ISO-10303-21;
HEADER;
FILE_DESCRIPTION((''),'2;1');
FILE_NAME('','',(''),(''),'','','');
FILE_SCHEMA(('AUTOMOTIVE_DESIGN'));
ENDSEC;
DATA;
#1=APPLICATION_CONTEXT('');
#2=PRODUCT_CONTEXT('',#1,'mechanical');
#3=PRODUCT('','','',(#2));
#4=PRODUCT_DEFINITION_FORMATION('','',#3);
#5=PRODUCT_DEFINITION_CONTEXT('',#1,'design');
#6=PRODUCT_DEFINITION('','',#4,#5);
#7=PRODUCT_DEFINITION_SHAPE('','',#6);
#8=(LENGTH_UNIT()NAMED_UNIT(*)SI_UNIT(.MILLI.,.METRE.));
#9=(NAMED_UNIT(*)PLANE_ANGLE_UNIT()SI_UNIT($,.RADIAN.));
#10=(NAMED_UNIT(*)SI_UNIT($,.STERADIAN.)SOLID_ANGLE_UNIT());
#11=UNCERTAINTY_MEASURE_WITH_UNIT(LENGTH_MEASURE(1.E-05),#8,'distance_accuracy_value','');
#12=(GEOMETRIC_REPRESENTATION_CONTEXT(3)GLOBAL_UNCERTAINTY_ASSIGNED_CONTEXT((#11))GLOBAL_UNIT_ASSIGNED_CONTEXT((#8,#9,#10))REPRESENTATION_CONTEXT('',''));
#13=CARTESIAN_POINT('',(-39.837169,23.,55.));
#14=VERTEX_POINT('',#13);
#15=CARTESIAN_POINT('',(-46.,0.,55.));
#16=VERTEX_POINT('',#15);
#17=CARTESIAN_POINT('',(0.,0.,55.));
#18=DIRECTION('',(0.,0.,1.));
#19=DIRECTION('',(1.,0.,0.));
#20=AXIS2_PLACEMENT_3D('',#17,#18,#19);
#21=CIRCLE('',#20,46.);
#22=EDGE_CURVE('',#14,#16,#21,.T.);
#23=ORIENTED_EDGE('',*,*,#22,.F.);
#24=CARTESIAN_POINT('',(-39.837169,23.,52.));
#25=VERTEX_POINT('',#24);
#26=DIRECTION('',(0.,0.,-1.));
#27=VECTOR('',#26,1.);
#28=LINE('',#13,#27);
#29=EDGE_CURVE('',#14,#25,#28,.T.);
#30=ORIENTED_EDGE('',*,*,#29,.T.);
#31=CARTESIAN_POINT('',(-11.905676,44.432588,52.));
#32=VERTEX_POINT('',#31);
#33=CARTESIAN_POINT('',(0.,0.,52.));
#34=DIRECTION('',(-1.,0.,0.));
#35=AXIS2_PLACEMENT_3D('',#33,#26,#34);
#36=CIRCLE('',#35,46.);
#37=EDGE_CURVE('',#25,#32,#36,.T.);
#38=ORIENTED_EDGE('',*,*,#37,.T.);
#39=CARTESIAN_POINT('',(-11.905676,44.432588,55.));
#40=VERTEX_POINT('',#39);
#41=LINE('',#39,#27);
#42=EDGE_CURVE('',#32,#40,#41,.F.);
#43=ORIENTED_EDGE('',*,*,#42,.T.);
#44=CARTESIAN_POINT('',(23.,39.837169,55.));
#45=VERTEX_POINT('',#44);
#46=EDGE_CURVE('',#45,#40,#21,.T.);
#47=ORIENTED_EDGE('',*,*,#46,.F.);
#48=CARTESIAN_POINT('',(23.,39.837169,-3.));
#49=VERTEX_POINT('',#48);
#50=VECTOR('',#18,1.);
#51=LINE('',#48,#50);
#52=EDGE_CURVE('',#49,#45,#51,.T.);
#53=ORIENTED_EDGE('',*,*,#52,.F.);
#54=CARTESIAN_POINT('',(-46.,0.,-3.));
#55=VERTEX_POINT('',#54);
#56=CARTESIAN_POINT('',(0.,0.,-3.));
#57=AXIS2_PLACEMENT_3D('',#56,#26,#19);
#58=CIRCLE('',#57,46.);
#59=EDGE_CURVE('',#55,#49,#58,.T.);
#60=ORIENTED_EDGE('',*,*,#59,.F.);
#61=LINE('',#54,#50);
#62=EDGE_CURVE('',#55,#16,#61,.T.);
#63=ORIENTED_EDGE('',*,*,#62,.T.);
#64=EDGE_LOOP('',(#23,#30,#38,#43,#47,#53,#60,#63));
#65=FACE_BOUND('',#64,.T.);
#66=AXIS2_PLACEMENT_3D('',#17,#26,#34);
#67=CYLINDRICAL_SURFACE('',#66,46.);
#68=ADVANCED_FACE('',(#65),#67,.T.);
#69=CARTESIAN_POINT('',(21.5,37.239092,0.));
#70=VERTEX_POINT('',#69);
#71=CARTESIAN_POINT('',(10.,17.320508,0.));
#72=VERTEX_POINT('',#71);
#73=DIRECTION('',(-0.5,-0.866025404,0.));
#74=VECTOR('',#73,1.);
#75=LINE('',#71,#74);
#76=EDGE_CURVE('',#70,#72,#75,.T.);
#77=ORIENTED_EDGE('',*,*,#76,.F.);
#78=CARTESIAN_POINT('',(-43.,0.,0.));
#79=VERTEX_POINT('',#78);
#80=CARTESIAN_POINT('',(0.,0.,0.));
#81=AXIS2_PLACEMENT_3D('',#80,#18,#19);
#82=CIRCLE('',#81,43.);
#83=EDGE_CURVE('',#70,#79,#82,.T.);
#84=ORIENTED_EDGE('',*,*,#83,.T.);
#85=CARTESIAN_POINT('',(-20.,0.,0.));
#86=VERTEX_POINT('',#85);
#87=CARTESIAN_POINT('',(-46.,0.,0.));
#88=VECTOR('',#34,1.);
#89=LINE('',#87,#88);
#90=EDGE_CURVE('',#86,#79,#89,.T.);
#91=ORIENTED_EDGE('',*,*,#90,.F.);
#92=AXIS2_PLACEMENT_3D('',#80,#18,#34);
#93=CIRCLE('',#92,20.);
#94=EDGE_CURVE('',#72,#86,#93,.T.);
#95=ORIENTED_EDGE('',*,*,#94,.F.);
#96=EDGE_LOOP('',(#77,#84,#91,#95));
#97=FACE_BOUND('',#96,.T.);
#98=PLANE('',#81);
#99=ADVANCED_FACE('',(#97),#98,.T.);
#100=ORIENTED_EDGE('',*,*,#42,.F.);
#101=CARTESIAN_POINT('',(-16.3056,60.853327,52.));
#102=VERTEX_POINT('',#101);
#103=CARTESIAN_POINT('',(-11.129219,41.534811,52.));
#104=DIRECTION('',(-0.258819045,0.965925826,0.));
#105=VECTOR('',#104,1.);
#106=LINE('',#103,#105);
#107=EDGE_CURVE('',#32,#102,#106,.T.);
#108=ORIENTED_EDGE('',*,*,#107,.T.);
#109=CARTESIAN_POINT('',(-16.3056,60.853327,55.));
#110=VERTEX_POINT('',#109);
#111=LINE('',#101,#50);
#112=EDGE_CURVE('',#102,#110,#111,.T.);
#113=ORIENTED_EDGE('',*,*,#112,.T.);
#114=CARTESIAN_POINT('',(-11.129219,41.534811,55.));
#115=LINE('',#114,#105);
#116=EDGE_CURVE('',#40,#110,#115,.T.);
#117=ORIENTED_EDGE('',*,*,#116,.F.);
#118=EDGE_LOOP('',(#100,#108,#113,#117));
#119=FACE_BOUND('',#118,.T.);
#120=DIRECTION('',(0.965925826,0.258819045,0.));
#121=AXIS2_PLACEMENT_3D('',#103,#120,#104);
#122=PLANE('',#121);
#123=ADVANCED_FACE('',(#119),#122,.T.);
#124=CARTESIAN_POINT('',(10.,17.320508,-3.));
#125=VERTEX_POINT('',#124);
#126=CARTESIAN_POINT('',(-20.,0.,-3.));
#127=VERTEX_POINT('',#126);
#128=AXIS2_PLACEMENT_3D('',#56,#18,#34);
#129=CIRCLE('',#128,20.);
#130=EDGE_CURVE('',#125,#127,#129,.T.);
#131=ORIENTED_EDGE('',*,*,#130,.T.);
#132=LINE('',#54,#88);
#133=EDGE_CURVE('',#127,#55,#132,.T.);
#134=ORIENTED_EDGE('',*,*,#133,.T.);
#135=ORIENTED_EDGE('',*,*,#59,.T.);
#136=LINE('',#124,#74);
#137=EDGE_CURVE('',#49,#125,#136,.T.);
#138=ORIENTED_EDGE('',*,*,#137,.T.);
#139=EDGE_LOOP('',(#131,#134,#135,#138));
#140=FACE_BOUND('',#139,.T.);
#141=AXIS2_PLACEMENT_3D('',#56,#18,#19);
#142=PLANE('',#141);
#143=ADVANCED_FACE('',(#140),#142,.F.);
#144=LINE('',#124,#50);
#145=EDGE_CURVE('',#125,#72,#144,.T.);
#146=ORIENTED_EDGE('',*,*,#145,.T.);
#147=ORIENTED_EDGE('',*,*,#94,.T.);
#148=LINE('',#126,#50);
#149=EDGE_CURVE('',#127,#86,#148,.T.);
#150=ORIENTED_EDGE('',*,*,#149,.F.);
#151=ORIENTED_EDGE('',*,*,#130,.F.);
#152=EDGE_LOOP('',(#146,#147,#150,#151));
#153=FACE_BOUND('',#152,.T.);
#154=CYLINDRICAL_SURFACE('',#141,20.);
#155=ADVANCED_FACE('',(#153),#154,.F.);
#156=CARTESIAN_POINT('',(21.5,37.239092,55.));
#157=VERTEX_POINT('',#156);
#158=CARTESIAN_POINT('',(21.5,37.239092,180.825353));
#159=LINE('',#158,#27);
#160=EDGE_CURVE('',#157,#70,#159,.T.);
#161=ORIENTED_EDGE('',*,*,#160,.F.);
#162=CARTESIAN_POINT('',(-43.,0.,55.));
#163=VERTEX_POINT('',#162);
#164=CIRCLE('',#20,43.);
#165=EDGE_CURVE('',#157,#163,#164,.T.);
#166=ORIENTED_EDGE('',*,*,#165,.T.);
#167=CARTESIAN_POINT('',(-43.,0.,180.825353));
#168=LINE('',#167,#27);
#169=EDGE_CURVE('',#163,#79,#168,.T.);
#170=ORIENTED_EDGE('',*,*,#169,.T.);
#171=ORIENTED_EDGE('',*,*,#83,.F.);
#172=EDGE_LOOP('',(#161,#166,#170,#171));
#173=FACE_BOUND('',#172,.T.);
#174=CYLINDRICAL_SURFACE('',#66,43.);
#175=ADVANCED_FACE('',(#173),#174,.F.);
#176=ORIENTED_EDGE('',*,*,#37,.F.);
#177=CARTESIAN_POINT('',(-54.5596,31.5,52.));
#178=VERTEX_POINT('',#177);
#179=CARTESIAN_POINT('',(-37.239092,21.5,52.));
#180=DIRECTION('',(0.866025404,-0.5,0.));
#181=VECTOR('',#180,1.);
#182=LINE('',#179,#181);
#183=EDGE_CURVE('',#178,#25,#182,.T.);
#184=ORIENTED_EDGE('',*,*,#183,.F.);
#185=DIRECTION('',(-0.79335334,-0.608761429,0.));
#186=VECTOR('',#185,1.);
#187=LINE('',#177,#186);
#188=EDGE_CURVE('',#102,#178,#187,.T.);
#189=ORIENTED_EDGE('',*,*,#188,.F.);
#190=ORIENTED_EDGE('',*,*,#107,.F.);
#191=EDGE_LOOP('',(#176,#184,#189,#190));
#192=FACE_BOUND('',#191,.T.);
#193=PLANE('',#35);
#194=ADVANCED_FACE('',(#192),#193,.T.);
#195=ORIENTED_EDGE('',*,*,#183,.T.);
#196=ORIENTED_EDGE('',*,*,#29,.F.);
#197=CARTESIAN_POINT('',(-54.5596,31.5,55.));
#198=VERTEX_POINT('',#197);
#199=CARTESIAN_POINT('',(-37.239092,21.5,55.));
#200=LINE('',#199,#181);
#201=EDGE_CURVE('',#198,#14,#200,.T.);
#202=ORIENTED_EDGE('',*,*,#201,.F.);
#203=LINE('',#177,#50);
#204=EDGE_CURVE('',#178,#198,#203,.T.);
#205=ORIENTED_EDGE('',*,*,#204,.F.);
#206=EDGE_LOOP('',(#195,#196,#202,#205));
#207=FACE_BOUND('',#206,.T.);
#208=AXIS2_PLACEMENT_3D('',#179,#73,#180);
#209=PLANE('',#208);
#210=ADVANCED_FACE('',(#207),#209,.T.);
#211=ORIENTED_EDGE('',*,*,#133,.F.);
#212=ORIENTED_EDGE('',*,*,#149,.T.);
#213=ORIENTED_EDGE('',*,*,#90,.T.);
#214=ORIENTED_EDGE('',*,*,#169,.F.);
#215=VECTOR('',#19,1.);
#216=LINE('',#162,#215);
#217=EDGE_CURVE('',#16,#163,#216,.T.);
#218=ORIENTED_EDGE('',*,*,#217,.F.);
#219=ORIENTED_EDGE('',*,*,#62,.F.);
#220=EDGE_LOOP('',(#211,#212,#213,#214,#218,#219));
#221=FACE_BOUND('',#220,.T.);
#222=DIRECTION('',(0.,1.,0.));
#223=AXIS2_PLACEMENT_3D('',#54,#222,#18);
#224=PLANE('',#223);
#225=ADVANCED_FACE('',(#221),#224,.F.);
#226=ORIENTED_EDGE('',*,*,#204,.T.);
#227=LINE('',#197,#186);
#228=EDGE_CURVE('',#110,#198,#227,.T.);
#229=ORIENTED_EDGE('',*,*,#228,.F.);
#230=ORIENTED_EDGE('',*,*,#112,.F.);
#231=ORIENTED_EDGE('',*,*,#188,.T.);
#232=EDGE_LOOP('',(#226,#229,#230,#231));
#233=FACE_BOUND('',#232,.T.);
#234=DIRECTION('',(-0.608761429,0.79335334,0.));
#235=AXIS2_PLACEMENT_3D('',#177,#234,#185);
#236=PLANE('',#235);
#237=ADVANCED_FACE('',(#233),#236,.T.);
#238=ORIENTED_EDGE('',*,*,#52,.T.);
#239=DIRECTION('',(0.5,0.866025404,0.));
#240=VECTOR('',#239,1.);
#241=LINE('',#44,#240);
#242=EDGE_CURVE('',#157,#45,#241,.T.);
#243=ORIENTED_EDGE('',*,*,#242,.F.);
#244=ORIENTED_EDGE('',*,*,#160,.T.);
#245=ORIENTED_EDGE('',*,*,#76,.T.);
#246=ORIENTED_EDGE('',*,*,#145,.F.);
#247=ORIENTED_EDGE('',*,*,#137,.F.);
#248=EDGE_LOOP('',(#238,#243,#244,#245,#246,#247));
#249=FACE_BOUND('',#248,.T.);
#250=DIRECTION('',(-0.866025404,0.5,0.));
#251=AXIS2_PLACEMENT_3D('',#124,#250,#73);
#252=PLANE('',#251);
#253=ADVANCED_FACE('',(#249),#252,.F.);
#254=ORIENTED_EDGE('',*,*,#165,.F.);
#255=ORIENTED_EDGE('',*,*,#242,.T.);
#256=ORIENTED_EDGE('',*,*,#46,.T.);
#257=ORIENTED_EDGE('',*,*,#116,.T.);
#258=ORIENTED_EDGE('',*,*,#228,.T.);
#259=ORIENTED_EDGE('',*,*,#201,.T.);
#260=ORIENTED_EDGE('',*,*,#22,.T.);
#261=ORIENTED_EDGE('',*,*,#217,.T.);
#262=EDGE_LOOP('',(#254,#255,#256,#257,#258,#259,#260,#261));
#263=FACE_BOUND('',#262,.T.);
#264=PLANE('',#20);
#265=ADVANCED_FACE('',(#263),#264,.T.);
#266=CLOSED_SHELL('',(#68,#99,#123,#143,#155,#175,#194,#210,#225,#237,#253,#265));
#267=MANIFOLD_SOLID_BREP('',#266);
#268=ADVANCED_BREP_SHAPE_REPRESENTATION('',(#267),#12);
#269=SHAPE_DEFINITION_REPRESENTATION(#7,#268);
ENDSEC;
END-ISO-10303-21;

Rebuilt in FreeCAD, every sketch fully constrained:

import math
import FreeCAD as App
import Part
import Sketcher
from FreeCAD import Vector
Q = App.Units.Quantity

doc = App.newDocument("Part")
body = doc.addObject("PartDesign::Body", "Body")

sketch1 = body.newObject("Sketcher::SketchObject", "Sketch")
sketch1.AttachmentSupport = (doc.getObject("XY_Plane"), [""])
sketch1.MapMode = "FlatFace"
sketch1.addGeometry(Part.Circle(Vector(0, 0, 0), Vector(0, 0, 1), 46), False)
sketch1.addGeometry(Part.Circle(Vector(0, 0, 0), Vector(0, 0, 1), 43), False)
sketch1.addConstraint(Sketcher.Constraint("Coincident", 0, 3, -1, 1))
sketch1.addConstraint(Sketcher.Constraint("Coincident", 1, 3, -1, 1))
sketch1.addConstraint(Sketcher.Constraint("Diameter", 0, 92.0))
sketch1.addConstraint(Sketcher.Constraint("Diameter", 1, 86.0))
pad1 = body.newObject("PartDesign::Pad", "Pad")
pad1.Profile = sketch1
pad1.Length = 55

sketch2 = body.newObject("Sketcher::SketchObject", "Sketch001")
sketch2.AttachmentSupport = (doc.getObject("XY_Plane"), [""])
sketch2.MapMode = "FlatFace"
sketch2.AttachmentOffset = App.Placement(Vector(0, 0, -3), App.Rotation())
sketch2.addGeometry(Part.LineSegment(Vector(23, 39.837169, 0), Vector(10, 17.320508, 0)), False)
sketch2.addGeometry(Part.ArcOfCircle(Part.Circle(Vector(0, 0, 0), Vector(0, 0, 1), 20), math.radians(60), math.radians(180)), False)
sketch2.addGeometry(Part.LineSegment(Vector(-20, 0, 0), Vector(-46, 0, 0)), False)
sketch2.addGeometry(Part.ArcOfCircle(Part.Circle(Vector(0, 0, 0), Vector(0, 0, 1), 46), math.radians(60), math.radians(180)), False)
sketch2.addConstraint(Sketcher.Constraint("Coincident", 0, 2, 1, 1))
sketch2.addConstraint(Sketcher.Constraint("Coincident", 1, 2, 2, 1))
sketch2.addConstraint(Sketcher.Constraint("Coincident", 2, 2, 3, 2))
sketch2.addConstraint(Sketcher.Constraint("Coincident", 3, 1, 0, 1))
sketch2.addConstraint(Sketcher.Constraint("Horizontal", 2))
sketch2.addConstraint(Sketcher.Constraint("Coincident", 1, 3, -1, 1))
sketch2.addConstraint(Sketcher.Constraint("Coincident", 3, 3, -1, 1))
sketch2.addConstraint(Sketcher.Constraint("PointOnObject", 1, 2, -1))
sketch2.addConstraint(Sketcher.Constraint("Radius", 1, 20.0))
sketch2.addConstraint(Sketcher.Constraint("Radius", 3, 46.0))
sketch2.addConstraint(Sketcher.Constraint("Angle", 0, Q("-120 deg")))
sketch2.addConstraint(Sketcher.Constraint("DistanceX", -1, 1, 0, 2, 10.0))
pad2 = body.newObject("PartDesign::Pad", "Pad001")
pad2.Profile = sketch2
pad2.Length = 3

sketch3 = body.newObject("Sketcher::SketchObject", "Sketch002")
sketch3.AttachmentSupport = (doc.getObject("XY_Plane"), [""])
sketch3.MapMode = "FlatFace"
sketch3.AttachmentOffset = App.Placement(Vector(0, 0, -3), App.Rotation())
sketch3.addGeometry(Part.LineSegment(Vector(21.5, 37.239092, 0), Vector(23, 39.837169, 0)), False)
sketch3.addGeometry(Part.ArcOfCircle(Part.Circle(Vector(0, 0, 0), Vector(0, 0, 1), 46), math.radians(180), math.radians(420)), False)
sketch3.addGeometry(Part.LineSegment(Vector(-46, 0, 0), Vector(-43, 0, 0)), False)
sketch3.addGeometry(Part.ArcOfCircle(Part.Circle(Vector(0, 0, 0), Vector(0, 0, 1), 43), math.radians(180), math.radians(420)), False)
sketch3.addConstraint(Sketcher.Constraint("Coincident", 0, 2, 1, 2))
sketch3.addConstraint(Sketcher.Constraint("Coincident", 1, 1, 2, 1))
sketch3.addConstraint(Sketcher.Constraint("Coincident", 2, 2, 3, 1))
sketch3.addConstraint(Sketcher.Constraint("Coincident", 3, 2, 0, 1))
sketch3.addConstraint(Sketcher.Constraint("Horizontal", 2))
sketch3.addConstraint(Sketcher.Constraint("Coincident", 1, 3, -1, 1))
sketch3.addConstraint(Sketcher.Constraint("Coincident", 3, 3, -1, 1))
sketch3.addConstraint(Sketcher.Constraint("PointOnObject", 1, 1, -1))
sketch3.addConstraint(Sketcher.Constraint("Radius", 1, 46.0))
sketch3.addConstraint(Sketcher.Constraint("Radius", 3, 43.0))
sketch3.addConstraint(Sketcher.Constraint("Angle", 0, Q("60 deg")))
sketch3.addConstraint(Sketcher.Constraint("DistanceX", -1, 1, 0, 2, 23.0))
pocket1 = body.newObject("PartDesign::Pocket", "Pocket")
pocket1.Profile = sketch3
pocket1.Length = 58
pocket1.Reversed = True

sketch4 = body.newObject("Sketcher::SketchObject", "Sketch003")
sketch4.AttachmentSupport = (doc.getObject("XY_Plane"), [""])
sketch4.MapMode = "FlatFace"
sketch4.AttachmentOffset = App.Placement(Vector(0, 0, 52), App.Rotation())
sketch4.addGeometry(Part.LineSegment(Vector(-54.5596, 31.5, 0), Vector(-37.239092, 21.5, 0)), False)
sketch4.addGeometry(Part.ArcOfCircle(Part.Circle(Vector(0, 0, 0), Vector(0, 0, 1), 43), math.radians(105), math.radians(150)), False)
sketch4.addGeometry(Part.LineSegment(Vector(-11.129219, 41.534811, 0), Vector(-16.3056, 60.853327, 0)), False)
sketch4.addGeometry(Part.LineSegment(Vector(-16.3056, 60.853327, 0), Vector(-54.5596, 31.5, 0)), False)
sketch4.addConstraint(Sketcher.Constraint("Coincident", 0, 2, 1, 2))
sketch4.addConstraint(Sketcher.Constraint("Coincident", 1, 1, 2, 1))
sketch4.addConstraint(Sketcher.Constraint("Coincident", 2, 2, 3, 1))
sketch4.addConstraint(Sketcher.Constraint("Coincident", 3, 2, 0, 1))
sketch4.addConstraint(Sketcher.Constraint("Coincident", 1, 3, -1, 1))
sketch4.addConstraint(Sketcher.Constraint("Equal", 0, 2))
sketch4.addConstraint(Sketcher.Constraint("Radius", 1, 43.0))
sketch4.addConstraint(Sketcher.Constraint("Angle", 0, Q("-30 deg")))
sketch4.addConstraint(Sketcher.Constraint("Angle", 2, Q("105 deg")))
sketch4.addConstraint(Sketcher.Constraint("Distance", 0, 20.0))
sketch4.addConstraint(Sketcher.Constraint("Angle", 3, Q("-142.5 deg")))
sketch4.addConstraint(Sketcher.Constraint("DistanceY", -1, 1, 0, 2, 21.5))
pad3 = body.newObject("PartDesign::Pad", "Pad002")
pad3.Profile = sketch4
pad3.Length = 3

doc.recompute()
